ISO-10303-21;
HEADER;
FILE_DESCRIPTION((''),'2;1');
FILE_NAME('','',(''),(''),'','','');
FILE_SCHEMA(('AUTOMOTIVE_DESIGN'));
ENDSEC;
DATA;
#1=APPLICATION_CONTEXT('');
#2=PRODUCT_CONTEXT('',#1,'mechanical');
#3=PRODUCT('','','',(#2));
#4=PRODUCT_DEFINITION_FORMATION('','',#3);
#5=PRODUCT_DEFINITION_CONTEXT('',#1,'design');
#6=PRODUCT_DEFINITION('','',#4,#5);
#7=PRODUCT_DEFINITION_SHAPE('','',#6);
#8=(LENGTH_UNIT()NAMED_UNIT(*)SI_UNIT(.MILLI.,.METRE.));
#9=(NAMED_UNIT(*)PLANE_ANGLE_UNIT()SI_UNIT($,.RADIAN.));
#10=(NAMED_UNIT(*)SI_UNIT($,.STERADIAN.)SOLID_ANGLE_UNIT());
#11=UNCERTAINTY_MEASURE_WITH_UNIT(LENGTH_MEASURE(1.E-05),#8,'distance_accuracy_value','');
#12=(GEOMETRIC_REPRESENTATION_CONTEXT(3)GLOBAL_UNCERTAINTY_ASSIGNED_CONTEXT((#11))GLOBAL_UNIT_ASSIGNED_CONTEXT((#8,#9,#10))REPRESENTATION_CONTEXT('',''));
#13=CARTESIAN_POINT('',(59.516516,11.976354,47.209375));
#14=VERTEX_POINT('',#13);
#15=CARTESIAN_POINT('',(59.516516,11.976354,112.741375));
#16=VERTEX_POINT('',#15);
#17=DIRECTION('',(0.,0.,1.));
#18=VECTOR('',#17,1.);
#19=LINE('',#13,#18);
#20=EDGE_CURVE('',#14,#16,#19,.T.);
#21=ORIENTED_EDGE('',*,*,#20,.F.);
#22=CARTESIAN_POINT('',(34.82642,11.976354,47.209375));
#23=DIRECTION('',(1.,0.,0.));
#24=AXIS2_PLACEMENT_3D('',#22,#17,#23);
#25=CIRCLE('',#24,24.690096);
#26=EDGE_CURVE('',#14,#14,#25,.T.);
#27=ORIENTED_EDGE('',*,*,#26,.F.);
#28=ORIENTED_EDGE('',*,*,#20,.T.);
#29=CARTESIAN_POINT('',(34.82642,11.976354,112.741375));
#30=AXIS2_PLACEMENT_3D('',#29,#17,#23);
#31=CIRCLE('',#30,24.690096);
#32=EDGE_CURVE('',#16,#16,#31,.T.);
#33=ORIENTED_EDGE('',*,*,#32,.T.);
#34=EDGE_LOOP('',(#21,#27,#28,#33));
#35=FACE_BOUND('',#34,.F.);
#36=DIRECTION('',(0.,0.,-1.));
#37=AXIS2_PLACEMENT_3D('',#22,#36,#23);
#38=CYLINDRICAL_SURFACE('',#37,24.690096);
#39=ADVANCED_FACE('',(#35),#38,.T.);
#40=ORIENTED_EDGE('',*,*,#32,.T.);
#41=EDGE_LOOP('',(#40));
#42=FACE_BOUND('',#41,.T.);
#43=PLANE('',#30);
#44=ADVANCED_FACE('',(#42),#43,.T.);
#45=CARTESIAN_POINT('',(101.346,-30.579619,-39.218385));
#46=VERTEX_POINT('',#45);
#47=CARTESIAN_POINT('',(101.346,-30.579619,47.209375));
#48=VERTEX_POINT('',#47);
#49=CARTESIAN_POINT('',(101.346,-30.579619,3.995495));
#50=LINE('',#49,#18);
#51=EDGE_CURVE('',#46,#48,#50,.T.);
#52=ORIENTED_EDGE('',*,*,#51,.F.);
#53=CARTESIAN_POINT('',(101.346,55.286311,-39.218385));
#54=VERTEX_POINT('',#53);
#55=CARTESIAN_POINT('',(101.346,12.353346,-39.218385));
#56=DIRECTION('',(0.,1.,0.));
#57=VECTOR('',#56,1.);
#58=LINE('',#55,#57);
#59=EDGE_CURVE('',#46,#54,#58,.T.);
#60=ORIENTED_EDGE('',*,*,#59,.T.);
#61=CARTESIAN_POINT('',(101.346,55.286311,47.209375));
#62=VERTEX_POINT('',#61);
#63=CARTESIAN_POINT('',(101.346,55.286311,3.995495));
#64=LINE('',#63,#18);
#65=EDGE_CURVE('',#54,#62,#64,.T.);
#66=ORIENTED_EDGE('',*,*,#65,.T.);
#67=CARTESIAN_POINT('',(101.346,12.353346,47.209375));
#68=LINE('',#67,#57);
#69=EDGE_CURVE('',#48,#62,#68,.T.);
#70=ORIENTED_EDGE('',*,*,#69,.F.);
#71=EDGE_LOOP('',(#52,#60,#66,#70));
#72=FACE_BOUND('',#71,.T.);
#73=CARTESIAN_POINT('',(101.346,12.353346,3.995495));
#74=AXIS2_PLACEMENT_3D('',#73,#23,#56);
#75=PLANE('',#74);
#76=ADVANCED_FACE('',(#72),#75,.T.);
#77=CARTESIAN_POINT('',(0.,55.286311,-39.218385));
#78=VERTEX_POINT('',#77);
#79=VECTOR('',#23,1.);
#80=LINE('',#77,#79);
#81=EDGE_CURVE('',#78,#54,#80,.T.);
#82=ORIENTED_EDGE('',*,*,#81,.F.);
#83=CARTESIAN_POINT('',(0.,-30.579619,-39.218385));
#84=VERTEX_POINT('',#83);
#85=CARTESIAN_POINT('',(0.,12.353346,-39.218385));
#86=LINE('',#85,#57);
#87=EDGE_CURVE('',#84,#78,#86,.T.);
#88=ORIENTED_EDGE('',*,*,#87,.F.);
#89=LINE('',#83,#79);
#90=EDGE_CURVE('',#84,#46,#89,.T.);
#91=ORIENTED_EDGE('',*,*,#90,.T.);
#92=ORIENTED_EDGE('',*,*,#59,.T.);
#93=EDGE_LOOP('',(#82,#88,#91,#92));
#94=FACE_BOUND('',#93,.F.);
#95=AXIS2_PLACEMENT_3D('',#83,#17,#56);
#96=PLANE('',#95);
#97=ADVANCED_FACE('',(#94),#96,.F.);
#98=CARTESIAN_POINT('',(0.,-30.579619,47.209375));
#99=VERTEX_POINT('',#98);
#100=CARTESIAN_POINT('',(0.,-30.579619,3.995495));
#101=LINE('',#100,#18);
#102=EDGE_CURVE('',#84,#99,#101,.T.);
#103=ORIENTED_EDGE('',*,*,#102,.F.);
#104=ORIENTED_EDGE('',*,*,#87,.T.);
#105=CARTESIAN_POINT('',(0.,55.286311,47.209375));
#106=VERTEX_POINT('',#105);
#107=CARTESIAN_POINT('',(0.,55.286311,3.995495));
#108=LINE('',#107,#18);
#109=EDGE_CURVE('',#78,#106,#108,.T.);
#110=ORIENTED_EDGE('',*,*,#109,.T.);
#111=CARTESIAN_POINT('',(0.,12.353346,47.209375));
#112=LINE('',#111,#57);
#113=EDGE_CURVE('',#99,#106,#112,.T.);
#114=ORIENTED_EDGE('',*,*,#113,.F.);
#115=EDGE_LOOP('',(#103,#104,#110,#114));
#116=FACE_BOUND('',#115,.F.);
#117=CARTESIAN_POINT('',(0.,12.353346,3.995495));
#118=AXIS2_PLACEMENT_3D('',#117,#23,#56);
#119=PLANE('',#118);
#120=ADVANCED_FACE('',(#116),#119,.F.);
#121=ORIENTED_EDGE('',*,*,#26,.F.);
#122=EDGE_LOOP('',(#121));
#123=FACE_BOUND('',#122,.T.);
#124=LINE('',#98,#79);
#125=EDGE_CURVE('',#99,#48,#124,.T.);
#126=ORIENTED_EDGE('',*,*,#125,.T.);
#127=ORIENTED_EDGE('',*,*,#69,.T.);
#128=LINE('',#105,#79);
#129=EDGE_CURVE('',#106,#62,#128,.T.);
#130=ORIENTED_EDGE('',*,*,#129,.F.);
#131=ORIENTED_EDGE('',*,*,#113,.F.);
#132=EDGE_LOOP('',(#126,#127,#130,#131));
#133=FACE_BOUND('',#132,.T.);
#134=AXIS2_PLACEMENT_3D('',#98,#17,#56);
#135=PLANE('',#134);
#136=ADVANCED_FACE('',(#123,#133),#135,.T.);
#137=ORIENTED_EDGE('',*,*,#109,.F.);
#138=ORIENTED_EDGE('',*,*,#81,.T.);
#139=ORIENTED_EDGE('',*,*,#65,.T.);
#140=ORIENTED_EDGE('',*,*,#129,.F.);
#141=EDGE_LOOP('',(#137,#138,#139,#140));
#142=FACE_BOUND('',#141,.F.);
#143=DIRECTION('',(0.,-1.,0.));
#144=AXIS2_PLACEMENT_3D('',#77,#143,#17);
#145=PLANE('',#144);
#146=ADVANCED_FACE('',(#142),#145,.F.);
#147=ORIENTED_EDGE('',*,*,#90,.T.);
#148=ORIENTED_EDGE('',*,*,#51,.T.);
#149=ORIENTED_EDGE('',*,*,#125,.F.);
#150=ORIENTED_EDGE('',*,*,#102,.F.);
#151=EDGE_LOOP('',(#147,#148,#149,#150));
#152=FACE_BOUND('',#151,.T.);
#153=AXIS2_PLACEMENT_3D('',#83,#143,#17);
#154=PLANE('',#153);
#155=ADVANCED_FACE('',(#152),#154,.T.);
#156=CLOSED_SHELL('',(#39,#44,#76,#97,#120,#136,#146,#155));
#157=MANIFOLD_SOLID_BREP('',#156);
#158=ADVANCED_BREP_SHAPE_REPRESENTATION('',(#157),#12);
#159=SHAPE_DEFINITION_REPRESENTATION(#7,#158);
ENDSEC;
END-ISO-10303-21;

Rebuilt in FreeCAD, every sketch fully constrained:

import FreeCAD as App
import Part
import Sketcher

V = App.Vector
Q = App.Units.Quantity

doc = App.newDocument("Part")
body = doc.addObject("PartDesign::Body", "Body")

sketch1 = doc.addObject("Sketcher::SketchObject", "Sketch")
body.addObject(sketch1)
sketch1.AttachmentSupport = (doc.YZ_Plane, [""])
sketch1.MapMode = "FlatFace"
sketch1.addGeometry(Part.LineSegment(V(-31, 47, 0), V(-31, -39, 0)), False)
sketch1.addGeometry(Part.LineSegment(V(-31, -39, 0), V(55, -39, 0)), False)
sketch1.addGeometry(Part.LineSegment(V(55, -39, 0), V(55, 47, 0)), False)
sketch1.addGeometry(Part.LineSegment(V(55, 47, 0), V(-31, 47, 0)), False)
sketch1.addConstraint(Sketcher.Constraint("Coincident", 0, 2, 1, 1))
sketch1.addConstraint(Sketcher.Constraint("Coincident", 1, 2, 2, 1))
sketch1.addConstraint(Sketcher.Constraint("Coincident", 2, 2, 3, 1))
sketch1.addConstraint(Sketcher.Constraint("Coincident", 3, 2, 0, 1))
sketch1.addConstraint(Sketcher.Constraint("Vertical", 0))
sketch1.addConstraint(Sketcher.Constraint("Horizontal", 1))
sketch1.addConstraint(Sketcher.Constraint("Vertical", 2))
sketch1.addConstraint(Sketcher.Constraint("Horizontal", 3))
sketch1.addConstraint(Sketcher.Constraint("DistanceX", 1, 1, 1, 2, 85.86593))
sketch1.addConstraint(Sketcher.Constraint("DistanceY", 0, 2, 0, 1, 86.42776))
sketch1.addConstraint(Sketcher.Constraint("DistanceX", 0, 2, -1, 1, 30.579619))
sketch1.addConstraint(Sketcher.Constraint("DistanceY", 0, 2, -1, 1, 39.218385))
pad1 = doc.addObject("PartDesign::Pad", "Pad")
body.addObject(pad1)
pad1.Profile = sketch1
pad1.Length = Q("3.99 in")

sketch2 = doc.addObject("Sketcher::SketchObject", "Sketch001")
body.addObject(sketch2)
sketch2.AttachmentSupport = (doc.XY_Plane, [""])
sketch2.MapMode = "FlatFace"
sketch2.AttachmentOffset = App.Placement(V(0, 0, 47.209375), App.Rotation())
sketch2.addGeometry(Part.Circle(V(35, 12, 0), V(0, 0, 1), 25), False)
sketch2.addConstraint(Sketcher.Constraint("Diameter", 0, 49.380192))
sketch2.addConstraint(Sketcher.Constraint("DistanceX", -1, 1, 0, 3, 34.82642))
sketch2.addConstraint(Sketcher.Constraint("DistanceY", -1, 1, 0, 3, 11.976354))
pad2 = doc.addObject("PartDesign::Pad", "Pad001")
body.addObject(pad2)
pad2.Profile = sketch2
pad2.Length = Q("2.58 in")

doc.recompute()
